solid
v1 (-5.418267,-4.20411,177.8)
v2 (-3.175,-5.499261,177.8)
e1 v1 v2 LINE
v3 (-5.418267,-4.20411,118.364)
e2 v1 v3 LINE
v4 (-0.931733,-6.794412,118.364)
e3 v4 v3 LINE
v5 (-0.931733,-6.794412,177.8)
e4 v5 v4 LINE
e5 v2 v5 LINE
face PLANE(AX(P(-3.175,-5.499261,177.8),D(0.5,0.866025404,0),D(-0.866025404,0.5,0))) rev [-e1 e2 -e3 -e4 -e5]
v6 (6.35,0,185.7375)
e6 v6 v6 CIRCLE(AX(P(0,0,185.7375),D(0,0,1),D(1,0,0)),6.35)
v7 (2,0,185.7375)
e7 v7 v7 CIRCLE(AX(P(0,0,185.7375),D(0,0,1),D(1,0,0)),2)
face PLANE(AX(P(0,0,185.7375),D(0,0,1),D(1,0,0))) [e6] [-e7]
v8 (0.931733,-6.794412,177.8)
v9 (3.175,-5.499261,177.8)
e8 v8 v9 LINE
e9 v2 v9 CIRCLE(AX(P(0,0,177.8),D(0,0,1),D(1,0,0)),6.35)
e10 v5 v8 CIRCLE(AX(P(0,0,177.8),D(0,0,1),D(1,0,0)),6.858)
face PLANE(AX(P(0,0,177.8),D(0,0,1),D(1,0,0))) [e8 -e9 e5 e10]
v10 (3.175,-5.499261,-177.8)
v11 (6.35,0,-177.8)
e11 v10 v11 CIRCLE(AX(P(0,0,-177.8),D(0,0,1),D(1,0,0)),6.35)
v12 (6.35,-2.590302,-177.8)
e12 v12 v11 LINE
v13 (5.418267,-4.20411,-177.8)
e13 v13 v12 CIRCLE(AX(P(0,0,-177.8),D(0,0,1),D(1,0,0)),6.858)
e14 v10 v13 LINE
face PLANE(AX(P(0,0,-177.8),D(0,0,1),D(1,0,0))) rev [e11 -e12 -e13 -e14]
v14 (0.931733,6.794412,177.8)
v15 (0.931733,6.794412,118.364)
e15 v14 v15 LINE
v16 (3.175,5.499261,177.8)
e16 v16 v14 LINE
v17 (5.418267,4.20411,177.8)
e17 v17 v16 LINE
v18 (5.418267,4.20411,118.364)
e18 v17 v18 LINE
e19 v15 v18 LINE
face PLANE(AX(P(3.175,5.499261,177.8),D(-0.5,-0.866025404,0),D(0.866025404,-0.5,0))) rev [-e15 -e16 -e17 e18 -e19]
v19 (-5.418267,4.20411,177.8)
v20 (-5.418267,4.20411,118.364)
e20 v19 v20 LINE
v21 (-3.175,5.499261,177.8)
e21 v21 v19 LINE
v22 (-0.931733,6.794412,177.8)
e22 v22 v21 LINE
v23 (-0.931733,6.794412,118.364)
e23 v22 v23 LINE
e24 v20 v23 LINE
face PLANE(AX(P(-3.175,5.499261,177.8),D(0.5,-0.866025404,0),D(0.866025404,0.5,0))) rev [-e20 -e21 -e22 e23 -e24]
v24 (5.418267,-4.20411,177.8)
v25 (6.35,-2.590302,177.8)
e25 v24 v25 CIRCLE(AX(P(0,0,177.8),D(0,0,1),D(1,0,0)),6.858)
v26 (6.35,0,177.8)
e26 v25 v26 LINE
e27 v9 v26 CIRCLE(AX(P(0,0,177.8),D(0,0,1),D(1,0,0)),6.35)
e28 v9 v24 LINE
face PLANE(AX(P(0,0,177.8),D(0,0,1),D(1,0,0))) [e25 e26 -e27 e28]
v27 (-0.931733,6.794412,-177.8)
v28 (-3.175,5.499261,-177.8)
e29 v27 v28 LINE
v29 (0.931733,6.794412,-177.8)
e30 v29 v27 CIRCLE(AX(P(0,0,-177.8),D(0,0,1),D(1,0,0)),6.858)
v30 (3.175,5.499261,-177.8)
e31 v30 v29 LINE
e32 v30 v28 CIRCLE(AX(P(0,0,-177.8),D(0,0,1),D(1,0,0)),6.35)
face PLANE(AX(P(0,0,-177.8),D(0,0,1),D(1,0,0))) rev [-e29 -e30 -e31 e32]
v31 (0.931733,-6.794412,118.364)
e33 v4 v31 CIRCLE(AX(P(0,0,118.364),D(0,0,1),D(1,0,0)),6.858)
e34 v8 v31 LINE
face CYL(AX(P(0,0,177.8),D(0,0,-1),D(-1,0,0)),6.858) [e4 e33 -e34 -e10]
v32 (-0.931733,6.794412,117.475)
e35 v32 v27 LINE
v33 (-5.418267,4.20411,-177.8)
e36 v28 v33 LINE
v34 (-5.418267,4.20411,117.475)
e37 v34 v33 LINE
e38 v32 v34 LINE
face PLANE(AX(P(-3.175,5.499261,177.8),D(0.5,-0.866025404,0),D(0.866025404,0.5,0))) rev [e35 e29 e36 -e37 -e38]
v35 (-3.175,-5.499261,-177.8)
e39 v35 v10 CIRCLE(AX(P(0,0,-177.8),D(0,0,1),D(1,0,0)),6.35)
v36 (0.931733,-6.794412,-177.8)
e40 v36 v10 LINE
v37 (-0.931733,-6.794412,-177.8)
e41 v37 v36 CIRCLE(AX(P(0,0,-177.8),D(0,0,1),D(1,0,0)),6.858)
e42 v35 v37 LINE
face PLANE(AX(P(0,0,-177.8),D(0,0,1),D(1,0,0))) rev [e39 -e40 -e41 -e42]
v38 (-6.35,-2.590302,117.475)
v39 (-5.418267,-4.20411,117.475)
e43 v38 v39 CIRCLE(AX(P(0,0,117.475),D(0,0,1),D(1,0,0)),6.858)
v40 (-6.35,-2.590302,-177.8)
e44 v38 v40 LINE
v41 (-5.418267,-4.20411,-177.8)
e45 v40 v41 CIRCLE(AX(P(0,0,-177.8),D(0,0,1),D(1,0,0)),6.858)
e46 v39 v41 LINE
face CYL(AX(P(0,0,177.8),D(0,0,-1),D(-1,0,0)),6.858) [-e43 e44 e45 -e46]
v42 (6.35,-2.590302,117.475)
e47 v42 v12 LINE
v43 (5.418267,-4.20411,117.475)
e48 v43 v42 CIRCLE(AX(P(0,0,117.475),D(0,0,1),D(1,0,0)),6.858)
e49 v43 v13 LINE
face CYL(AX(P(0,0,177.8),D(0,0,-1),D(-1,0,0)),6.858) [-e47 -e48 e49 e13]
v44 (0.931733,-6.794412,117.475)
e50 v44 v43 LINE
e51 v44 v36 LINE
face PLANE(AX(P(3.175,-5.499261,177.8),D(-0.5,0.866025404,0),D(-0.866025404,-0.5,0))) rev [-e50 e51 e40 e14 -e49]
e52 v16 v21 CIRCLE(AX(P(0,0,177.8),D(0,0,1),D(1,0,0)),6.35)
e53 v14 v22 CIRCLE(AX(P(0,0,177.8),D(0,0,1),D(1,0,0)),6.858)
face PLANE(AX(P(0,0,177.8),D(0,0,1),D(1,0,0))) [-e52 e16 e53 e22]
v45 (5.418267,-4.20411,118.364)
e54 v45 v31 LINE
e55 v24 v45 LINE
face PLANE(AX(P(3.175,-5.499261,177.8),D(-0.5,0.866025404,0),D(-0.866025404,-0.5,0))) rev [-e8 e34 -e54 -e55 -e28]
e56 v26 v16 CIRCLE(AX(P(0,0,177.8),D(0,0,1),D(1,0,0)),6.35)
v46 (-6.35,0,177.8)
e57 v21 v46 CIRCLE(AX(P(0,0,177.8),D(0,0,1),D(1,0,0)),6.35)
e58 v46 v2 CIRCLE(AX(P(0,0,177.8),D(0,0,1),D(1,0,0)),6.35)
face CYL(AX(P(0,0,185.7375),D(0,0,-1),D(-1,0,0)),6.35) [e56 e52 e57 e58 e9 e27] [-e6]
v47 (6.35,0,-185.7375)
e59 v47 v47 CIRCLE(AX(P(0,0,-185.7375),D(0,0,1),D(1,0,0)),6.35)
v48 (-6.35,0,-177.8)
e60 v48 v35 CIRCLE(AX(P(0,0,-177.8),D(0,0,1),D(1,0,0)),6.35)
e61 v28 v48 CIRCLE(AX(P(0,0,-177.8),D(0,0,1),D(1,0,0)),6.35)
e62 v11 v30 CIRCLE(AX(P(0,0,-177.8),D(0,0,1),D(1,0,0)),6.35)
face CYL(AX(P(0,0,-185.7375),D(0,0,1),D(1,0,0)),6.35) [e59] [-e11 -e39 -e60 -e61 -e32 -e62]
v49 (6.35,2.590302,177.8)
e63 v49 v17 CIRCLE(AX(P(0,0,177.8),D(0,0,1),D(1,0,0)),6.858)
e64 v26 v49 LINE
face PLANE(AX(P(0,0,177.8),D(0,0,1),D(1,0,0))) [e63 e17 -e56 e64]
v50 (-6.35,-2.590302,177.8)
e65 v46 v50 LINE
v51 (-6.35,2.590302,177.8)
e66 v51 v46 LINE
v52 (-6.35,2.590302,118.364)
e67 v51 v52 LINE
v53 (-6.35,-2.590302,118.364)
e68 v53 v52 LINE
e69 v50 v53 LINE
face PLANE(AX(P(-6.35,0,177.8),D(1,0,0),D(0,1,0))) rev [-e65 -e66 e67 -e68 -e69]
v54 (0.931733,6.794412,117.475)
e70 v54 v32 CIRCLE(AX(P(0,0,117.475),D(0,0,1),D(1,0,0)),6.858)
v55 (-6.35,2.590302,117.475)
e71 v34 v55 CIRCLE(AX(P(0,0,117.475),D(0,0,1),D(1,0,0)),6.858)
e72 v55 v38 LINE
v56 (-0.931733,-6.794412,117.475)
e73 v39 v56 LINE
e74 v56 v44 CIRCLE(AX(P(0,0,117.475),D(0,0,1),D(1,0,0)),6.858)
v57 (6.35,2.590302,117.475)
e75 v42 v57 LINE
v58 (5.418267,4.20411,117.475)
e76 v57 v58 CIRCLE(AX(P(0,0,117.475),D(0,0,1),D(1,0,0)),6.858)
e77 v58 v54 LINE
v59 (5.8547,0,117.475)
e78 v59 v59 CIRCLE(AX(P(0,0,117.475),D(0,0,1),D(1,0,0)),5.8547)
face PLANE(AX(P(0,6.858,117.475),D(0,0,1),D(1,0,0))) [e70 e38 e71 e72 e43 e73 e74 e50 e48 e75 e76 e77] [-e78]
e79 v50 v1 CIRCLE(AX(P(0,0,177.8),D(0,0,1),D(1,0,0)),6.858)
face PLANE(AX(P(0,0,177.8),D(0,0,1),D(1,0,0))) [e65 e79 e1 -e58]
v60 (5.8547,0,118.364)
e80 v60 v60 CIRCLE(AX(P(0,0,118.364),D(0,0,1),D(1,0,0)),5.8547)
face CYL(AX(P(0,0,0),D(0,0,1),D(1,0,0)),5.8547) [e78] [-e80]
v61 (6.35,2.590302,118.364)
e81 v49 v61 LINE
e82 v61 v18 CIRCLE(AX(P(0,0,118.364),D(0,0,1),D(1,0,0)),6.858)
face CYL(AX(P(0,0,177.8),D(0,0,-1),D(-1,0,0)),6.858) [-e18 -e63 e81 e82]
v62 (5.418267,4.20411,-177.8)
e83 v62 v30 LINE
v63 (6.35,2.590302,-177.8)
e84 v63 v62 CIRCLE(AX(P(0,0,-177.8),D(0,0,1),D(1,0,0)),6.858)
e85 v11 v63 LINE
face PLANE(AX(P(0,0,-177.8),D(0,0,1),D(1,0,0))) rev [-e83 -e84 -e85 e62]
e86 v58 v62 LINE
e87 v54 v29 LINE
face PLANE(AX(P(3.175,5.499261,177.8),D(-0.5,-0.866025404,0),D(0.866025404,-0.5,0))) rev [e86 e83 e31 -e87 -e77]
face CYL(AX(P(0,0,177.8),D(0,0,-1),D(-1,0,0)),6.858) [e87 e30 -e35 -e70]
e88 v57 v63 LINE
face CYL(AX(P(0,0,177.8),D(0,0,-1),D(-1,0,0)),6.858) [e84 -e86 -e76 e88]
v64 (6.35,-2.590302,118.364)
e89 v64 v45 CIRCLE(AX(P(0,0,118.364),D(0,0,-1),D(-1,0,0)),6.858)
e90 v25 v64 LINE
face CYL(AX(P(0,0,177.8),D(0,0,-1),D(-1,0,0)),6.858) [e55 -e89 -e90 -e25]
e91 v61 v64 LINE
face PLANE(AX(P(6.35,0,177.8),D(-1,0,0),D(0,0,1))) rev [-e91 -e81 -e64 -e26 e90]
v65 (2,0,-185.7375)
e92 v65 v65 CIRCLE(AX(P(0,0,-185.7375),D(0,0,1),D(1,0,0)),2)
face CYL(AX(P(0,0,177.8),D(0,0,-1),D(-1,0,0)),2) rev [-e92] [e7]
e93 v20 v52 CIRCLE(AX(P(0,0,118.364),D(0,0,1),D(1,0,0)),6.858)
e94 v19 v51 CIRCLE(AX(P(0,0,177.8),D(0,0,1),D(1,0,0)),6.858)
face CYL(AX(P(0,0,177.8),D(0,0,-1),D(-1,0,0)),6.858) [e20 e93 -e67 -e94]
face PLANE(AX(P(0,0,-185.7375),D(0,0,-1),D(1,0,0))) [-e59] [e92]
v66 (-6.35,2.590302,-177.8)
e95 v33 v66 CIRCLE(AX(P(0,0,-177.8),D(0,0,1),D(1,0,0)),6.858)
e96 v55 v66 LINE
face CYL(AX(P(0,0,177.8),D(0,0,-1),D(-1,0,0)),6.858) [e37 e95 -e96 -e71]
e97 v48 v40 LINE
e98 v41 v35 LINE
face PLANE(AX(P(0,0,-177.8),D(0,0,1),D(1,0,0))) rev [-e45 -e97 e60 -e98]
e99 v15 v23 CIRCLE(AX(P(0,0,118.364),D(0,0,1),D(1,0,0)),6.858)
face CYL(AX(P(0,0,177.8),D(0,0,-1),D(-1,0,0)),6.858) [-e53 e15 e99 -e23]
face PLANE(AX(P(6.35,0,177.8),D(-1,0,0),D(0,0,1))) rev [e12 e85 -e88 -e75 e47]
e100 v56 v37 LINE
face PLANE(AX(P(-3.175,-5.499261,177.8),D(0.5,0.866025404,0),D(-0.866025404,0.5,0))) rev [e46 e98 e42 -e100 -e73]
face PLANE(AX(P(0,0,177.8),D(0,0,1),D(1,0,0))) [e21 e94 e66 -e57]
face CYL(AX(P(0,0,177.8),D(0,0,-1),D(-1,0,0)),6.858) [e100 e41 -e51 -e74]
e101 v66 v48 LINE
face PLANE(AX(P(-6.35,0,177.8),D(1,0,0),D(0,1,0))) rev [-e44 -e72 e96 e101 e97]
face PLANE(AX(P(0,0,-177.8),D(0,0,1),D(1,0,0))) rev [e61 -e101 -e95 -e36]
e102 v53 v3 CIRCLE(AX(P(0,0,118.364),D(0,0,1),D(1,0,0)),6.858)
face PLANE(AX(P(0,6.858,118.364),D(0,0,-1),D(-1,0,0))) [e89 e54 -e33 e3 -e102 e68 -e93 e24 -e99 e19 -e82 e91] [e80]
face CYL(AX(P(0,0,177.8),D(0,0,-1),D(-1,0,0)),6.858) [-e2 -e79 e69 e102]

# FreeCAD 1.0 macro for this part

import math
import FreeCAD as App
import Part
import Sketcher

V = App.Vector
Q = App.Units.Quantity


def add_polygon(sketch, points):
    """Adds a closed chain of lines whose ends are joined by coincident constraints."""
    first, n = sketch.GeometryCount, len(points)
    for a, b in zip(points, points[1:] + points[:1]):
        sketch.addGeometry(Part.LineSegment(App.Vector(*a, 0), App.Vector(*b, 0)), False)
    for i in range(n):
        sketch.addConstraint(Sketcher.Constraint("Coincident", first + i, 2, first + (i + 1) % n, 1))

doc = App.newDocument("Part")
params = doc.addObject("Spreadsheet::Sheet", "Params")
for row, (alias, value) in enumerate([
    ("sketch1_radius", "0.27 in"),
    ("pad1_length", "14 in"),
    ("sketch2_diameter", "0.5 in"),
    ("pad2_length", "0.3125 in"),
    ("sketch3_height", "0.035 in"),
    ("groove_angle", "360 deg"),
], start=1):
    params.set(f"A{row}", alias)
    params.set(f"B{row}", "=" + value)
    params.setAlias(f"B{row}", alias)

body = doc.addObject("PartDesign::Body", "Body")

sketch1 = doc.addObject("Sketcher::SketchObject", "Sketch")
body.addObject(sketch1)
sketch1.AttachmentSupport = (doc.XY_Plane, [""])
sketch1.MapMode = "FlatFace"
sketch1.addGeometry(Part.ArcOfCircle(Part.Circle(V(0, 0, 0), V(0, 0, 1), 6.9), math.radians(82.19), math.radians(97.81)), False)
sketch1.addGeometry(Part.LineSegment(V(-0.9, 6.8, 0), V(-5.4, 4.2, 0)), False)
sketch1.addGeometry(Part.ArcOfCircle(Part.Circle(V(0, 0, 0), V(0, 0, 1), 6.9), math.radians(142.19), math.radians(157.81)), False)
sketch1.addGeometry(Part.LineSegment(V(-6.3, 2.6, 0), V(-6.3, -2.6, 0)), False)
sketch1.addGeometry(Part.ArcOfCircle(Part.Circle(V(0, 0, 0), V(0, 0, 1), 6.9), math.radians(-157.81), math.radians(-142.19)), False)
sketch1.addGeometry(Part.LineSegment(V(-5.4, -4.2, 0), V(-0.9, -6.8, 0)), False)
sketch1.addGeometry(Part.ArcOfCircle(Part.Circle(V(0, 0, 0), V(0, 0, 1), 6.9), math.radians(-97.81), math.radians(-82.19)), False)
sketch1.addGeometry(Part.LineSegment(V(0.9, -6.8, 0), V(5.4, -4.2, 0)), False)
sketch1.addGeometry(Part.ArcOfCircle(Part.Circle(V(0, 0, 0), V(0, 0, 1), 6.9), math.radians(-37.81), math.radians(-22.19)), False)
sketch1.addGeometry(Part.LineSegment(V(6.3, -2.6, 0), V(6.3, 2.6, 0)), False)
sketch1.addGeometry(Part.ArcOfCircle(Part.Circle(V(0, 0, 0), V(0, 0, 1), 6.9), math.radians(22.19), math.radians(37.81)), False)
sketch1.addGeometry(Part.LineSegment(V(5.4, 4.2, 0), V(0.9, 6.8, 0)), False)
sketch1.addGeometry(Part.Circle(V(0, 0, 0), V(0, 0, 1), 2), False)
sketch1.addConstraint(Sketcher.Constraint("Coincident", 0, 2, 1, 1))
sketch1.addConstraint(Sketcher.Constraint("Coincident", 1, 2, 2, 1))
sketch1.addConstraint(Sketcher.Constraint("Coincident", 2, 2, 3, 1))
sketch1.addConstraint(Sketcher.Constraint("Coincident", 3, 2, 4, 1))
sketch1.addConstraint(Sketcher.Constraint("Coincident", 4, 2, 5, 1))
sketch1.addConstraint(Sketcher.Constraint("Coincident", 5, 2, 6, 1))
sketch1.addConstraint(Sketcher.Constraint("Coincident", 6, 2, 7, 1))
sketch1.addConstraint(Sketcher.Constraint("Coincident", 7, 2, 8, 1))
sketch1.addConstraint(Sketcher.Constraint("Coincident", 8, 2, 9, 1))
sketch1.addConstraint(Sketcher.Constraint("Coincident", 9, 2, 10, 1))
sketch1.addConstraint(Sketcher.Constraint("Coincident", 10, 2, 11, 1))
sketch1.addConstraint(Sketcher.Constraint("Coincident", 11, 2, 0, 1))
sketch1.addConstraint(Sketcher.Constraint("Vertical", 3))
sketch1.addConstraint(Sketcher.Constraint("Vertical", 9))
sketch1.addConstraint(Sketcher.Constraint("Coincident", 0, 3, -1, 1))
sketch1.addConstraint(Sketcher.Constraint("Coincident", 2, 3, -1, 1))
sketch1.addConstraint(Sketcher.Constraint("Coincident", 4, 3, -1, 1))
sketch1.addConstraint(Sketcher.Constraint("Coincident", 6, 3, -1, 1))
sketch1.addConstraint(Sketcher.Constraint("Coincident", 8, 3, -1, 1))
sketch1.addConstraint(Sketcher.Constraint("Coincident", 10, 3, -1, 1))
sketch1.addConstraint(Sketcher.Constraint("Coincident", 12, 3, -1, 1))
sketch1.addConstraint(Sketcher.Constraint("Equal", 0, 2))
sketch1.addConstraint(Sketcher.Constraint("Equal", 2, 4))
sketch1.addConstraint(Sketcher.Constraint("Equal", 4, 6))
sketch1.addConstraint(Sketcher.Constraint("Equal", 6, 8))
sketch1.addConstraint(Sketcher.Constraint("Equal", 8, 10))
sketch1.addConstraint(Sketcher.Constraint("Parallel", 1, 7))
sketch1.addConstraint(Sketcher.Constraint("Parallel", 5, 11))
sketch1.addConstraint(Sketcher.Constraint("Horizontal", 5, 2, 6, 2))
sketch1.addConstraint(Sketcher.Constraint("Horizontal", 4, 2, 7, 2))
sketch1.addConstraint(Sketcher.Constraint("Horizontal", 3, 2, 8, 2))
sketch1.addConstraint(Sketcher.Constraint("Horizontal", 1, 2, 10, 2))
sketch1.addConstraint(Sketcher.Constraint("Vertical", 1, 2, 4, 2))
sketch1.addConstraint(Sketcher.Constraint("Radius", 0, Q("0.27 in")))
sketch1.addConstraint(Sketcher.Constraint("Angle", 1, Q("-150 deg")))
sketch1.addConstraint(Sketcher.Constraint("Diameter", 12, 4.0))
sketch1.addConstraint(Sketcher.Constraint("DistanceX", 2, 2, -1, 1, Q("0.25 in")))
sketch1.addConstraint(Sketcher.Constraint("DistanceX", 4, 2, 6, 2, Q("0.25 in")))
sketch1.setExpression("Constraints[33]", "Params.sketch1_radius")
pad1 = doc.addObject("PartDesign::Pad", "Pad")
body.addObject(pad1)
pad1.Profile = sketch1
pad1.setExpression("Length", "Params.pad1_length")
pad1.Midplane = True

sketch2 = doc.addObject("Sketcher::SketchObject", "Sketch001")
body.addObject(sketch2)
sketch2.AttachmentSupport = (doc.XY_Plane, [""])
sketch2.MapMode = "FlatFace"
sketch2.AttachmentOffset = App.Placement(V(0, 0, 7 * 25.4), App.Rotation())
sketch2.addGeometry(Part.Circle(V(0, 0, 0), V(0, 0, 1), 6.3), False)
sketch2.addGeometry(Part.Circle(V(0, 0, 0), V(0, 0, 1), 2), False)
sketch2.addConstraint(Sketcher.Constraint("Coincident", 0, 3, -1, 1))
sketch2.addConstraint(Sketcher.Constraint("Coincident", 1, 3, -1, 1))
sketch2.addConstraint(Sketcher.Constraint("Diameter", 0, Q("0.5 in")))
sketch2.addConstraint(Sketcher.Constraint("Diameter", 1, 4.0))
sketch2.setExpression("Constraints[2]", "Params.sketch2_diameter")
pad2 = doc.addObject("PartDesign::Pad", "Pad001")
body.addObject(pad2)
pad2.Profile = sketch2
pad2.setExpression("Length", "Params.pad2_length")
doc.recompute()

mirrored = doc.addObject("PartDesign::Mirrored", "Mirrored")
body.addObject(mirrored)
mirrored.Originals = [pad2]
mirrored.MirrorPlane = (doc.XY_Plane, [""])
body.Tip = mirrored

sketch3 = doc.addObject("Sketcher::SketchObject", "Sketch002")
body.addObject(sketch3)
sketch3.AttachmentSupport = (doc.YZ_Plane, [""])
sketch3.MapMode = "FlatFace"
add_polygon(sketch3, [(6.9, 118.4), (5.9, 118.4), (5.9, 117.5), (6.9, 117.5)])
sketch3.addConstraint(Sketcher.Constraint("Horizontal", 0))
sketch3.addConstraint(Sketcher.Constraint("Vertical", 1))
sketch3.addConstraint(Sketcher.Constraint("Horizontal", 2))
sketch3.addConstraint(Sketcher.Constraint("Vertical", 3))
sketch3.addConstraint(Sketcher.Constraint("DistanceY", 1, 2, 1, 1, Q("0.035 in")))
sketch3.addConstraint(Sketcher.Constraint("DistanceY", -1, 1, 0, 2, Q("4.66 in")))
sketch3.addConstraint(Sketcher.Constraint("DistanceX", -1, 1, 2, 2, Q("0.27 in")))
sketch3.addConstraint(Sketcher.Constraint("DistanceX", 0, 2, 0, 1, Q("0.0395 in")))
sketch3.setExpression("Constraints[8]", "Params.sketch3_height")
groove = doc.addObject("PartDesign::Groove", "Groove")
body.addObject(groove)
groove.Profile = sketch3
groove.ReferenceAxis = (sketch3, ["V_Axis"])
groove.setExpression("Angle", "Params.groove_angle")

doc.recompute()
